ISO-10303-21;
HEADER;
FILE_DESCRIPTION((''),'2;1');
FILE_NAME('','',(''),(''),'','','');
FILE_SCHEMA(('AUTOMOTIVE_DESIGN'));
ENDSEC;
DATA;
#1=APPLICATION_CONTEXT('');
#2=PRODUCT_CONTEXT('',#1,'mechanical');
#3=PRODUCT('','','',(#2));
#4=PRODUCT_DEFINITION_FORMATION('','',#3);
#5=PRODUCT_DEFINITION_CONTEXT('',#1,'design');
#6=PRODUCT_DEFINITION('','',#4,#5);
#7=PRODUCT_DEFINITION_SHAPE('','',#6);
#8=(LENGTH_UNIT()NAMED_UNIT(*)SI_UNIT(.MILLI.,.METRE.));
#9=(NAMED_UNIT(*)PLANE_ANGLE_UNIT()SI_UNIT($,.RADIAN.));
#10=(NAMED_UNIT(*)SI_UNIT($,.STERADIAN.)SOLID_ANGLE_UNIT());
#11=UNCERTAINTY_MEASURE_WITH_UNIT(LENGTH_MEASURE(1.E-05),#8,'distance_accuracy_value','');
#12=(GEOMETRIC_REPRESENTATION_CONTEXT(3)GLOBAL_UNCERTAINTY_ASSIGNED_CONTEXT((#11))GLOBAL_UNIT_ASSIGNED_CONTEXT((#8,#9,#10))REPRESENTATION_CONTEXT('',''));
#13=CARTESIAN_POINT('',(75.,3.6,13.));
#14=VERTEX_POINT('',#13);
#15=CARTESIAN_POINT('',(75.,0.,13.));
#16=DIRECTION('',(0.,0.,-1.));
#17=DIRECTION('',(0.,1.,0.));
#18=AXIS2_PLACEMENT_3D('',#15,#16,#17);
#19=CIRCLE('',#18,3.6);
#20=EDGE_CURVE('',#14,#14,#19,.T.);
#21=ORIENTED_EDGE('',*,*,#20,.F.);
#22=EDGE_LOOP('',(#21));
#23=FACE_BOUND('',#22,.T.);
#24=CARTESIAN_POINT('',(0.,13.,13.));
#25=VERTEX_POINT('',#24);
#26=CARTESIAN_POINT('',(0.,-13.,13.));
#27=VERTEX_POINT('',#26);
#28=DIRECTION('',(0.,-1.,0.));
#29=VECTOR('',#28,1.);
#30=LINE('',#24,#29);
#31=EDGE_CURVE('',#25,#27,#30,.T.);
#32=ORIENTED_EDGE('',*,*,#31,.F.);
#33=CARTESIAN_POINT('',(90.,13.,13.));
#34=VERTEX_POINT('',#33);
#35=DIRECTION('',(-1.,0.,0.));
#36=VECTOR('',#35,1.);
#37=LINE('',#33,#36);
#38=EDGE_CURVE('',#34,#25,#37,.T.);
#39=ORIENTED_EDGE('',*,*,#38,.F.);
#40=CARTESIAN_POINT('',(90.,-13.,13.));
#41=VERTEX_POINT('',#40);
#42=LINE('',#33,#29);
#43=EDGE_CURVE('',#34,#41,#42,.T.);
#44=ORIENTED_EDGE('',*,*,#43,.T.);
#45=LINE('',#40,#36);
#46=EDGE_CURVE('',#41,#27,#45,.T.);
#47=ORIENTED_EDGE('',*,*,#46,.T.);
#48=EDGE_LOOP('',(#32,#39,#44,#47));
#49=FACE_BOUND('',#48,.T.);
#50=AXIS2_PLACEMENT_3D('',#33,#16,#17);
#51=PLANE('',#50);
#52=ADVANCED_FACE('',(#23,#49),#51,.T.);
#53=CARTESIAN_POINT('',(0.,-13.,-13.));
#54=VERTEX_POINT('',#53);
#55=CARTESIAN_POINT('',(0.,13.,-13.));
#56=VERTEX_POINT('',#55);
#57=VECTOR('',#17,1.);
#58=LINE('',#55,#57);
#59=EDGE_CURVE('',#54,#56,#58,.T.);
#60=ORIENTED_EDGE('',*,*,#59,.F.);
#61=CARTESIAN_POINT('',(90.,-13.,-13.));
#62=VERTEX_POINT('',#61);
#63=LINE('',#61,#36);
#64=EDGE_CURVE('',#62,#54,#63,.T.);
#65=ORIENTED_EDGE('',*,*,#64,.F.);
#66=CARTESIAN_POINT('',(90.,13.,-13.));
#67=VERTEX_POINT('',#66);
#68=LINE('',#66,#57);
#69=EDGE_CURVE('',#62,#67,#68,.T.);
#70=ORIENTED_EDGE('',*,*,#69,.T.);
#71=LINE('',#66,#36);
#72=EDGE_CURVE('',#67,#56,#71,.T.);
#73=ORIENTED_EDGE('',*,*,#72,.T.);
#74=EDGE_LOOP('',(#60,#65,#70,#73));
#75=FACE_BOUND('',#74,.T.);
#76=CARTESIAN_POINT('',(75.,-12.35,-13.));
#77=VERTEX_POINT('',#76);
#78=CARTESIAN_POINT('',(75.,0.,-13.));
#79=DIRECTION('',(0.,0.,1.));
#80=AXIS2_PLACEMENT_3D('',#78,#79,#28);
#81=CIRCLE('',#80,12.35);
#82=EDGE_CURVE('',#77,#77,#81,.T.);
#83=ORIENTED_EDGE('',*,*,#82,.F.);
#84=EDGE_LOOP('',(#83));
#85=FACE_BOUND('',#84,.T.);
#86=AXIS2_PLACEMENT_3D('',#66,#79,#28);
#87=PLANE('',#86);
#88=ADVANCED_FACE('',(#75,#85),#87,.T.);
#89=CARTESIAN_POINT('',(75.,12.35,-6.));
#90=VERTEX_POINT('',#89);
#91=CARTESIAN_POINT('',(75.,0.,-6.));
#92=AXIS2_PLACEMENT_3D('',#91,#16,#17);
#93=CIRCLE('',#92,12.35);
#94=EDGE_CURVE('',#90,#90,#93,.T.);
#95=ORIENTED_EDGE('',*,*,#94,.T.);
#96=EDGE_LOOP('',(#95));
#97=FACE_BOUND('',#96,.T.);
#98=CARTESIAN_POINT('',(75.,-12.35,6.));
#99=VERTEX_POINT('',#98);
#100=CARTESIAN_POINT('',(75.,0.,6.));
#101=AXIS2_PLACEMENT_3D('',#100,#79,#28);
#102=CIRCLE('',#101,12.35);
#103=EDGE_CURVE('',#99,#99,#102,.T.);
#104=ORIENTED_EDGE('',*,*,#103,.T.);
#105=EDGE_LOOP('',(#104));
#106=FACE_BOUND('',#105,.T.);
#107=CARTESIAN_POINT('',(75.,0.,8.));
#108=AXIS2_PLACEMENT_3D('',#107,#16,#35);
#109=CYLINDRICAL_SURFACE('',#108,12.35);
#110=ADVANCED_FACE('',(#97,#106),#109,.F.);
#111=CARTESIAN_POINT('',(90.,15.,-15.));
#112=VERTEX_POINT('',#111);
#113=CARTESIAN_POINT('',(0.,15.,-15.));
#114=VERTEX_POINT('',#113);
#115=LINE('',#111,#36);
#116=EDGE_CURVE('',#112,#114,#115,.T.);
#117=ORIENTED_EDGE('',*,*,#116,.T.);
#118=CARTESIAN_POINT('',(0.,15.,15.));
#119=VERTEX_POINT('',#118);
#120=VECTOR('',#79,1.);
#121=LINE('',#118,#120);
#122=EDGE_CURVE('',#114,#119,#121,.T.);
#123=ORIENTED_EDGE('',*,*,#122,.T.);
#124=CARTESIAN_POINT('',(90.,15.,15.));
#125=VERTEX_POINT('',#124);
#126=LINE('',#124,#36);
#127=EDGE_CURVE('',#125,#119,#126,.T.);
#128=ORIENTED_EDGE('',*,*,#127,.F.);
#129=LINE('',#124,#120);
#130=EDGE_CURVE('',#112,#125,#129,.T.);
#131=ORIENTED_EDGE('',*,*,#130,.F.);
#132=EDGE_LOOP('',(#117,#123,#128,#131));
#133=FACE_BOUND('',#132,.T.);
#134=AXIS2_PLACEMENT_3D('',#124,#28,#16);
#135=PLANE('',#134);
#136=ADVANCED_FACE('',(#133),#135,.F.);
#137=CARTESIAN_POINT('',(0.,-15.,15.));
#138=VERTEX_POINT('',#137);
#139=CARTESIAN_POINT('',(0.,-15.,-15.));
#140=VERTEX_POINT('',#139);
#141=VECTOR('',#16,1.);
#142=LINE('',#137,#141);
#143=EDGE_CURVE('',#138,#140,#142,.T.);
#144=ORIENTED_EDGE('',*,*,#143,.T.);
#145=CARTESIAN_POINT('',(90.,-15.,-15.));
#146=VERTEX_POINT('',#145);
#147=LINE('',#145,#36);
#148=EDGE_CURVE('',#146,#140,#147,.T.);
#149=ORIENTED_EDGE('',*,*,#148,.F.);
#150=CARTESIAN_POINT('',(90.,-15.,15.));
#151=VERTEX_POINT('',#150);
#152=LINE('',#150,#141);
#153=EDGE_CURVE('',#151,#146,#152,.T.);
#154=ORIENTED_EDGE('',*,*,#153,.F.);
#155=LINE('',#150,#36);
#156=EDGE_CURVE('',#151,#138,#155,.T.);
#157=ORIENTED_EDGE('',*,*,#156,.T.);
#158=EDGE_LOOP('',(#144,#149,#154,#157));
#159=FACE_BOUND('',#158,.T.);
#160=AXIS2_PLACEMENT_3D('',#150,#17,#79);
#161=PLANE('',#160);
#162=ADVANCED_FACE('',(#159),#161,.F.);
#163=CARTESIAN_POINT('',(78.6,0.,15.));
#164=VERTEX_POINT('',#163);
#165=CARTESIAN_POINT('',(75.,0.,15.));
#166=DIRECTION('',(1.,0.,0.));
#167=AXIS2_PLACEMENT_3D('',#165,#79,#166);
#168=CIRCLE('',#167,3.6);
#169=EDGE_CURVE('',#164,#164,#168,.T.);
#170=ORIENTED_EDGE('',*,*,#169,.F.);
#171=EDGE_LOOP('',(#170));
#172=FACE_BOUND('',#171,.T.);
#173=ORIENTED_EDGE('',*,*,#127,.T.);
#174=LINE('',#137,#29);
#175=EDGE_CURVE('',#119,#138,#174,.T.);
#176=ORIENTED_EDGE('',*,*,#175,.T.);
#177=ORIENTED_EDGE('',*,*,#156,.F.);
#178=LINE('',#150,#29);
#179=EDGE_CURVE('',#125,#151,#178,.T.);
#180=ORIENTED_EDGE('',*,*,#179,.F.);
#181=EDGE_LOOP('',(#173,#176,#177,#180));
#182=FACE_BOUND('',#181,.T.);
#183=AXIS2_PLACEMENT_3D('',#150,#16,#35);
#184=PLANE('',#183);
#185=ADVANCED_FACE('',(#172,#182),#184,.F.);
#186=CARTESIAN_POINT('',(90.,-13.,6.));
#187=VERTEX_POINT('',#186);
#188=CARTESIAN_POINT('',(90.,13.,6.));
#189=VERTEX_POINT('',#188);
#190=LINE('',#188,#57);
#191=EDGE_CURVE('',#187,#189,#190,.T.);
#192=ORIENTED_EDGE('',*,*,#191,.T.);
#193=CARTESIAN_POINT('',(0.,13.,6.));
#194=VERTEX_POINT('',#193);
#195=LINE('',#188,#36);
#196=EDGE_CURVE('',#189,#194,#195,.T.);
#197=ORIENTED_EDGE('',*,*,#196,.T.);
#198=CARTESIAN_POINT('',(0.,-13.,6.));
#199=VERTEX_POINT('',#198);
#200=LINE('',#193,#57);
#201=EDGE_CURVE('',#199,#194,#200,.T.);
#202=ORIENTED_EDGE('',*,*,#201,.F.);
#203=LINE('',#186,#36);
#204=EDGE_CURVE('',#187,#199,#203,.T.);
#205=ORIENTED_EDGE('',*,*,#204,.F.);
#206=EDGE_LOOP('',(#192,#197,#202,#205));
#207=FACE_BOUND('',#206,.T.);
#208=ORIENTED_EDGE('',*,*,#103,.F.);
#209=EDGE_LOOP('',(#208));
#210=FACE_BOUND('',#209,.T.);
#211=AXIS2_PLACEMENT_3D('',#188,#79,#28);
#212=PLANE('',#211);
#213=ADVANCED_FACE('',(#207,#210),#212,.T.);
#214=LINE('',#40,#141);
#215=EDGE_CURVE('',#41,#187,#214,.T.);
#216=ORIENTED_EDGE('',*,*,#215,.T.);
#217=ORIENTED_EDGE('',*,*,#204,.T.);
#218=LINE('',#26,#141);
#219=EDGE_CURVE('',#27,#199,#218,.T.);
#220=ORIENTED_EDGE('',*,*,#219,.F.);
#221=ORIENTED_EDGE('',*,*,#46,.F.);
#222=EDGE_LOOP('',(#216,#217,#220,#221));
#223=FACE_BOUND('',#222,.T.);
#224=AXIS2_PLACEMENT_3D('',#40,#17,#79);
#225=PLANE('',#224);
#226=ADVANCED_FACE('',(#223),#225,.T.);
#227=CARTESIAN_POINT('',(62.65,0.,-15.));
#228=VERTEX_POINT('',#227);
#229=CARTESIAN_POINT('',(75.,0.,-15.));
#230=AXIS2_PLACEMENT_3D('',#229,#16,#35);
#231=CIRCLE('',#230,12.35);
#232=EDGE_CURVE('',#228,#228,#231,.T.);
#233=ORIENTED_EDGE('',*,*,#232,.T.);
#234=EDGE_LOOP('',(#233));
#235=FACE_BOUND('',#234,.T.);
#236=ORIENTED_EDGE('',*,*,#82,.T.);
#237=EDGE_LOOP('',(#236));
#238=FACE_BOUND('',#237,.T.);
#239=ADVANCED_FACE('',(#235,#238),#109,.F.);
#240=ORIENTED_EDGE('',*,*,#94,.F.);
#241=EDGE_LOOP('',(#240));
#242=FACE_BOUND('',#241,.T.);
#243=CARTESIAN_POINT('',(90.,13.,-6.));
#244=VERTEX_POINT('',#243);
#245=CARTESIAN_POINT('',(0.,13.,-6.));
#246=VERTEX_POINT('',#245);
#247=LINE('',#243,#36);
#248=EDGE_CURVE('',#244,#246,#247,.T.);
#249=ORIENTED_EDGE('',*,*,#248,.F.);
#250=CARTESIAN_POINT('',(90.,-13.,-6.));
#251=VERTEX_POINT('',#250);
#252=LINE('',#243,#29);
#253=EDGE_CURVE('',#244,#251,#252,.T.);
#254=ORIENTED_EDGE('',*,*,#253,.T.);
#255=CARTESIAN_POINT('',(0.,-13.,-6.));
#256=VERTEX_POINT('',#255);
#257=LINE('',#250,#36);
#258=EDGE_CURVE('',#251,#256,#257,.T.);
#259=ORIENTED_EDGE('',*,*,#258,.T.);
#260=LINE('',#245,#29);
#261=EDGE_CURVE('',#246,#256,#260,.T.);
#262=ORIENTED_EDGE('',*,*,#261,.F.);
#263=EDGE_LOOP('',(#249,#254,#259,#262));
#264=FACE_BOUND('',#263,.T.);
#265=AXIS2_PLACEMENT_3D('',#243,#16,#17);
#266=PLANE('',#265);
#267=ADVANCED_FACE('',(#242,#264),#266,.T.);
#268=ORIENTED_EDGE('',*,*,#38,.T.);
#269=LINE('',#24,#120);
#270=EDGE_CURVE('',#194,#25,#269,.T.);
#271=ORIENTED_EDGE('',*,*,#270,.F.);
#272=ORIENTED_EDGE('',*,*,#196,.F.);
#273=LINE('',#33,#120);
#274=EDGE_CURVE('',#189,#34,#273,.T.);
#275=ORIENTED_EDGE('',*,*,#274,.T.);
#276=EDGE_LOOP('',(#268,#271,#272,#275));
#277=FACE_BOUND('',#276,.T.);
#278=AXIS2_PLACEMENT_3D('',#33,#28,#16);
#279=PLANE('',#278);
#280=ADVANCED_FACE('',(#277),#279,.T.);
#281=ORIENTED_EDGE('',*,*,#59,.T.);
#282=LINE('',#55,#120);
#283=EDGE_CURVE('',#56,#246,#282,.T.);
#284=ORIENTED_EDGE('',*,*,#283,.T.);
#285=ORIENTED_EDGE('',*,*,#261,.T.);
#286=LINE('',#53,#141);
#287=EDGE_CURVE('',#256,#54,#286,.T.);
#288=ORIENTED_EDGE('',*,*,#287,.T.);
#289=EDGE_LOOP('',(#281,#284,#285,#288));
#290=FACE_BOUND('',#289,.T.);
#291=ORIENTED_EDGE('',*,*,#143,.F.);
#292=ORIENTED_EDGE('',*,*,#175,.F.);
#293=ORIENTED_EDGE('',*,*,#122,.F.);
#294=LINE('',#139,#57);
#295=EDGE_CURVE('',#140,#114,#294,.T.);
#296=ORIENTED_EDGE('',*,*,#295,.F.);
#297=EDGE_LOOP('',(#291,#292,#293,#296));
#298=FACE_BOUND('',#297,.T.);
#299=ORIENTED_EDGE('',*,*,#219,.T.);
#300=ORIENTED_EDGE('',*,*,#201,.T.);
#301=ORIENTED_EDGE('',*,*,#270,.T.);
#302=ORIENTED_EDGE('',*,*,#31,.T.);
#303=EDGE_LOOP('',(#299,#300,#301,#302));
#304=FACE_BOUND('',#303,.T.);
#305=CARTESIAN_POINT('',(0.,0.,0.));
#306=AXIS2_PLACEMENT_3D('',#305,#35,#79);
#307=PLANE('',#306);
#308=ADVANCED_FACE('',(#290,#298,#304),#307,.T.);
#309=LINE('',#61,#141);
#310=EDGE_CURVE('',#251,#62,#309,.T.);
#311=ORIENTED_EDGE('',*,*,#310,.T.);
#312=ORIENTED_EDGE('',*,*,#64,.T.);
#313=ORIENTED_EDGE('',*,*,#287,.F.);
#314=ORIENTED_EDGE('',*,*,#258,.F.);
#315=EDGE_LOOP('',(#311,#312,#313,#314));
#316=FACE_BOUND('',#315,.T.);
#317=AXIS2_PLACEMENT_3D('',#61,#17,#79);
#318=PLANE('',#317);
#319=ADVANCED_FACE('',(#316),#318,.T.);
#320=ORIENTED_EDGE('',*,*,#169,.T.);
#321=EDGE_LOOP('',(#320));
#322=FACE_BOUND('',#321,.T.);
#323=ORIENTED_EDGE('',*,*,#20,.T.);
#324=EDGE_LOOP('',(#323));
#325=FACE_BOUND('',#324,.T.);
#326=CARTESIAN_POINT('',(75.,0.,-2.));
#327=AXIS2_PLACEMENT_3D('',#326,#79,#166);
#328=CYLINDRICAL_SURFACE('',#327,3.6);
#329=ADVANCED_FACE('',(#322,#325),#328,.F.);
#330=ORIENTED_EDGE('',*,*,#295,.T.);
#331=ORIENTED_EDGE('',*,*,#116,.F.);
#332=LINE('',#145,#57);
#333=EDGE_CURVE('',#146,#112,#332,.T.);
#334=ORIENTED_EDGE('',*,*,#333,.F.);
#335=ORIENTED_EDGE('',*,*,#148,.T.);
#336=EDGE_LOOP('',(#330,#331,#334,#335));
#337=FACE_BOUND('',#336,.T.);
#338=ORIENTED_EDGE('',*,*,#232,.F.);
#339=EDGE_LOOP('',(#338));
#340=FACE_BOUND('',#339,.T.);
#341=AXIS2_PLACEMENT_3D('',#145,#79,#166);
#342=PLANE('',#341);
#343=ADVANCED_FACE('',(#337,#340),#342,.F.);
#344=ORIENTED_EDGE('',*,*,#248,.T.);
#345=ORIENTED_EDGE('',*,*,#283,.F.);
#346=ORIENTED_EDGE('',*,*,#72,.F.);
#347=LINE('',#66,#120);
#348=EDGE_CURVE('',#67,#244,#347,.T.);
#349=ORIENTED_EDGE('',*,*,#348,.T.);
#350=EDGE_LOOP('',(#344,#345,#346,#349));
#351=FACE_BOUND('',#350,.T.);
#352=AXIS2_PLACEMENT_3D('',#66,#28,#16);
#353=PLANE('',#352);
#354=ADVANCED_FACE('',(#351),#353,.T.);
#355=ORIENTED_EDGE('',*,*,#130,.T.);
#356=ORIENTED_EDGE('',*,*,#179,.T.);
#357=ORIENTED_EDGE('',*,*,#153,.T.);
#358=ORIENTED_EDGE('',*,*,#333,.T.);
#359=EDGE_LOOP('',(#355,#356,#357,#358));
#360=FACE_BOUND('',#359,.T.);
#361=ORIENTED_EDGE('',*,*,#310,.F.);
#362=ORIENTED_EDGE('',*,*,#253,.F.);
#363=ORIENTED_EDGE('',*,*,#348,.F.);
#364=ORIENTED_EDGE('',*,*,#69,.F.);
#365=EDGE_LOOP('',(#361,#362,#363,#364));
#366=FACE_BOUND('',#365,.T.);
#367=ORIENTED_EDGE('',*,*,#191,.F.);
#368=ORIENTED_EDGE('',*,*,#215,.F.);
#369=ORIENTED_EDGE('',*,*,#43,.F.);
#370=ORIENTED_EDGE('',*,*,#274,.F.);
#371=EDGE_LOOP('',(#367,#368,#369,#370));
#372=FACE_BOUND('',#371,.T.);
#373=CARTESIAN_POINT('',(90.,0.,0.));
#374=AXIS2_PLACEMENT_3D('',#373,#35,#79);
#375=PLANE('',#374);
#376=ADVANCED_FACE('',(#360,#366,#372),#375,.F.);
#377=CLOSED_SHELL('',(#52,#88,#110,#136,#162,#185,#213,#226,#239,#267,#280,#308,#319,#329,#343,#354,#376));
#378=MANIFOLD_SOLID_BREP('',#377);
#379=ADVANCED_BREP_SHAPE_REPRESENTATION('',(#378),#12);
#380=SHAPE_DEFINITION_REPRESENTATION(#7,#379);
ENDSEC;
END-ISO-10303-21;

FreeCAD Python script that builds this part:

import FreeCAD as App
import Part
import Sketcher

V = App.Vector
Q = App.Units.Quantity

doc = App.newDocument("Part")
params = doc.addObject("Spreadsheet::Sheet", "Params")
for row, (alias, value) in enumerate([
    ("sketch1_width", "30 mm"),
    ("sketch1_width2", "26 mm"),
    ("sketch1_height", "7 mm"),
    ("pad1_length", "90 mm"),
    ("sketch2_diameter", "24.7 mm"),
    ("pocket1_length", "23 mm"),
    ("sketch3_diameter", "7.2 mm"),
    ("pocket2_length", "17 mm"),
], start=1):
    params.set(f"A{row}", alias)
    params.set(f"B{row}", "=" + value)
    params.setAlias(f"B{row}", alias)

body = doc.addObject("PartDesign::Body", "Body")

# Sketch on YZ plane
sketch1 = body.newObject("Sketcher::SketchObject", "Sketch")
sketch1.AttachmentSupport = (doc.getObject("YZ_Plane"), [""])
sketch1.MapMode = "FlatFace"
sketch1.addGeometry(Part.LineSegment(V(15, 15, 0), V(-15, 15, 0)), False)
sketch1.addGeometry(Part.LineSegment(V(-15, 15, 0), V(-15, -15, 0)), False)
sketch1.addGeometry(Part.LineSegment(V(-15, -15, 0), V(15, -15, 0)), False)
sketch1.addGeometry(Part.LineSegment(V(15, -15, 0), V(15, 15, 0)), False)
sketch1.addGeometry(Part.LineSegment(V(-13, 6, 0), V(-13, 13, 0)), False)
sketch1.addGeometry(Part.LineSegment(V(-13, 13, 0), V(13, 13, 0)), False)
sketch1.addGeometry(Part.LineSegment(V(13, 13, 0), V(13, 6, 0)), False)
sketch1.addGeometry(Part.LineSegment(V(13, 6, 0), V(-13, 6, 0)), False)
sketch1.addGeometry(Part.LineSegment(V(-13, -13, 0), V(-13, -6, 0)), False)
sketch1.addGeometry(Part.LineSegment(V(-13, -6, 0), V(13, -6, 0)), False)
sketch1.addGeometry(Part.LineSegment(V(13, -6, 0), V(13, -13, 0)), False)
sketch1.addGeometry(Part.LineSegment(V(13, -13, 0), V(-13, -13, 0)), False)
sketch1.addConstraint(Sketcher.Constraint("Coincident", 0, 2, 1, 1))
sketch1.addConstraint(Sketcher.Constraint("Coincident", 1, 2, 2, 1))
sketch1.addConstraint(Sketcher.Constraint("Coincident", 2, 2, 3, 1))
sketch1.addConstraint(Sketcher.Constraint("Coincident", 3, 2, 0, 1))
sketch1.addConstraint(Sketcher.Constraint("Coincident", 4, 2, 5, 1))
sketch1.addConstraint(Sketcher.Constraint("Coincident", 5, 2, 6, 1))
sketch1.addConstraint(Sketcher.Constraint("Coincident", 6, 2, 7, 1))
sketch1.addConstraint(Sketcher.Constraint("Coincident", 7, 2, 4, 1))
sketch1.addConstraint(Sketcher.Constraint("Coincident", 8, 2, 9, 1))
sketch1.addConstraint(Sketcher.Constraint("Coincident", 9, 2, 10, 1))
sketch1.addConstraint(Sketcher.Constraint("Coincident", 10, 2, 11, 1))
sketch1.addConstraint(Sketcher.Constraint("Coincident", 11, 2, 8, 1))
sketch1.addConstraint(Sketcher.Constraint("Horizontal", 0))
sketch1.addConstraint(Sketcher.Constraint("Vertical", 1))
sketch1.addConstraint(Sketcher.Constraint("Horizontal", 2))
sketch1.addConstraint(Sketcher.Constraint("Vertical", 3))
sketch1.addConstraint(Sketcher.Constraint("Vertical", 4))
sketch1.addConstraint(Sketcher.Constraint("Horizontal", 5))
sketch1.addConstraint(Sketcher.Constraint("Vertical", 6))
sketch1.addConstraint(Sketcher.Constraint("Horizontal", 7))
sketch1.addConstraint(Sketcher.Constraint("Vertical", 8))
sketch1.addConstraint(Sketcher.Constraint("Horizontal", 9))
sketch1.addConstraint(Sketcher.Constraint("Vertical", 10))
sketch1.addConstraint(Sketcher.Constraint("Horizontal", 11))
sketch1.addConstraint(Sketcher.Constraint("Symmetric", 0, 2, 2, 2, -1, 1))
sketch1.addConstraint(Sketcher.Constraint("Symmetric", 6, 2, 8, 2, -1, 1))
sketch1.addConstraint(Sketcher.Constraint("Symmetric", 4, 2, 10, 2, -1, 1))
sketch1.addConstraint(Sketcher.Constraint("Vertical", 7, 2, 8, 2))
sketch1.addConstraint(Sketcher.Constraint("Equal", 2, 1))
sketch1.addConstraint(Sketcher.Constraint("DistanceX", 0, 2, 0, 1, Q("30 mm")))
sketch1.addConstraint(Sketcher.Constraint("DistanceX", 5, 1, 5, 2, Q("26 mm")))
sketch1.addConstraint(Sketcher.Constraint("DistanceY", 4, 1, 4, 2, Q("7 mm")))
sketch1.addConstraint(Sketcher.Constraint("DistanceY", -1, 1, 4, 2, Q("13 mm")))
sketch1.setExpression("Constraints[29]", "Params.sketch1_width")
sketch1.setExpression("Constraints[30]", "Params.sketch1_width2")
sketch1.setExpression("Constraints[31]", "Params.sketch1_height")
pad1 = body.newObject("PartDesign::Pad", "Pad")
pad1.Profile = sketch1
pad1.setExpression("Length", "Params.pad1_length")

# Sketch on XY plane
sketch2 = body.newObject("Sketcher::SketchObject", "Sketch001")
sketch2.AttachmentSupport = (doc.getObject("XY_Plane"), [""])
sketch2.MapMode = "FlatFace"
sketch2.AttachmentOffset = App.Placement(V(0, 0, -15), App.Rotation())
sketch2.addGeometry(Part.Circle(V(75, 0, 0), V(0, 0, 1), 12.35), False)
sketch2.addConstraint(Sketcher.Constraint("PointOnObject", 0, 3, -1))
sketch2.addConstraint(Sketcher.Constraint("Diameter", 0, Q("24.7 mm")))
sketch2.addConstraint(Sketcher.Constraint("DistanceX", -1, 1, 0, 3, Q("75 mm")))
sketch2.setExpression("Constraints[1]", "Params.sketch2_diameter")
pocket1 = body.newObject("PartDesign::Pocket", "Pocket")
pocket1.Profile = sketch2
pocket1.setExpression("Length", "Params.pocket1_length")
pocket1.Reversed = True

# Sketch on XY plane
sketch3 = body.newObject("Sketcher::SketchObject", "Sketch002")
sketch3.AttachmentSupport = (doc.getObject("XY_Plane"), [""])
sketch3.MapMode = "FlatFace"
sketch3.AttachmentOffset = App.Placement(V(0, 0, 15), App.Rotation())
sketch3.addGeometry(Part.Circle(V(75, 0, 0), V(0, 0, 1), 3.6), False)
sketch3.addConstraint(Sketcher.Constraint("PointOnObject", 0, 3, -1))
sketch3.addConstraint(Sketcher.Constraint("Diameter", 0, Q("7.2 mm")))
sketch3.addConstraint(Sketcher.Constraint("DistanceX", -1, 1, 0, 3, Q("75 mm")))
sketch3.setExpression("Constraints[1]", "Params.sketch3_diameter")
pocket2 = body.newObject("PartDesign::Pocket", "Pocket001")
pocket2.Profile = sketch3
pocket2.setExpression("Length", "Params.pocket2_length")

doc.recompute()
